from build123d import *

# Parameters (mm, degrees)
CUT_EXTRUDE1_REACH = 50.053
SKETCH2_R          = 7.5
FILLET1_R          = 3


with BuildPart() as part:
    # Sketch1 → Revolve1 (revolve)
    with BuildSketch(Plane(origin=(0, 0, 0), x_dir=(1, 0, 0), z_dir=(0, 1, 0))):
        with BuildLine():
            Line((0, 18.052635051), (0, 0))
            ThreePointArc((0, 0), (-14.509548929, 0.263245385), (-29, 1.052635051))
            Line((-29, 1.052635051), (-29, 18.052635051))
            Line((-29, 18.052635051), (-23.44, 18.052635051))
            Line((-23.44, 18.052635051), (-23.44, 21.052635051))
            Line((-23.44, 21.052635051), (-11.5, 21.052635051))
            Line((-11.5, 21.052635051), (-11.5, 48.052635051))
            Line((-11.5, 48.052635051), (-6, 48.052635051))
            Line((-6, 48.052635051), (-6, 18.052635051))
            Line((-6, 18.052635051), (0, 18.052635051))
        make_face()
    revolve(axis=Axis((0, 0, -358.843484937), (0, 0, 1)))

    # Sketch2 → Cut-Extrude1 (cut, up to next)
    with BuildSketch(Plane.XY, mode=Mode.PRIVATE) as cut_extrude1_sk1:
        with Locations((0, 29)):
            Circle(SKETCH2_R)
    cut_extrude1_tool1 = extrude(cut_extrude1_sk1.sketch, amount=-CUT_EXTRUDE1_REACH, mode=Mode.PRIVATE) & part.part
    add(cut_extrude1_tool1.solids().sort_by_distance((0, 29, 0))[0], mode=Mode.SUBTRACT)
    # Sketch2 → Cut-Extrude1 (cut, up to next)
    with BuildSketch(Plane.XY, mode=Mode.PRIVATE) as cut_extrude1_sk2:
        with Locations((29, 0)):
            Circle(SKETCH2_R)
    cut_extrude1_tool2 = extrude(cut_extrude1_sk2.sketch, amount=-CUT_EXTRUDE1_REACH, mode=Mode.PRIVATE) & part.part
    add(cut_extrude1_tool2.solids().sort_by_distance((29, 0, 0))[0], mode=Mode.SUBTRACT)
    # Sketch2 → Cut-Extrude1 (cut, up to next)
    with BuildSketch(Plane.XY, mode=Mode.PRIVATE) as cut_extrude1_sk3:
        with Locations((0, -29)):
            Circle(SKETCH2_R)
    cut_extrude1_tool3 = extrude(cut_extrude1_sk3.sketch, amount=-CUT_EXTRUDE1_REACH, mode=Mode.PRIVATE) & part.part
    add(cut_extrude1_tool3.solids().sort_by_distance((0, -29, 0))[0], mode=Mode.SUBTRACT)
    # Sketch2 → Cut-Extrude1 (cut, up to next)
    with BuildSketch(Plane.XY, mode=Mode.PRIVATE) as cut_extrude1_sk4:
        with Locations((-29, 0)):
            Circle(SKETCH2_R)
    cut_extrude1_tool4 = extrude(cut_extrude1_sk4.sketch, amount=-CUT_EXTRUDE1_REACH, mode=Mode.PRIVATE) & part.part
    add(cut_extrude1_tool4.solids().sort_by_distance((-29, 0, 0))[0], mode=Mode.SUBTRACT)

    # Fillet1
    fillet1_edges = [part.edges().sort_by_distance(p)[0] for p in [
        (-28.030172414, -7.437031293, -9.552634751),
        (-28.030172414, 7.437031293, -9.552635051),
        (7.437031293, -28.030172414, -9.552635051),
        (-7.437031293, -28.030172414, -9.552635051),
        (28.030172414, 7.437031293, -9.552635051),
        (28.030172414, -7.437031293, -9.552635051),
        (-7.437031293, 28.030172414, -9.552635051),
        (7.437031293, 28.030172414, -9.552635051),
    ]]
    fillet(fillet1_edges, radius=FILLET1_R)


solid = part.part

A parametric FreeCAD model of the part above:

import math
import FreeCAD as App
import Part
import Sketcher
from FreeCAD import Vector
Q = App.Units.Quantity


def edges_at(feature, points):
    """Names of the edges that pass closest to the given points."""
    edges = feature.Shape.Edges
    near = lambda p: min(range(len(edges)), key=lambda i: edges[i].distToShape(Part.Vertex(*p))[0])
    return sorted({f"Edge{near(p) + 1}" for p in points})

doc = App.newDocument("Part")
body = doc.addObject("PartDesign::Body", "Body")

sketch1 = doc.addObject("Sketcher::SketchObject", "Sketch")
body.addObject(sketch1)
sketch1.AttachmentSupport = (doc.XZ_Plane, [""])
sketch1.MapMode = "FlatFace"
sketch1.addGeometry([
    Part.LineSegment(Vector(0, 0, 0), Vector(0, -18.1, 0)),
    Part.LineSegment(Vector(0, -18.1, 0), Vector(-6, -18.1, 0)),
    Part.LineSegment(Vector(-6, -18.1, 0), Vector(-6, -48.1, 0)),
    Part.LineSegment(Vector(-6, -48.1, 0), Vector(-11.5, -48.1, 0)),
    Part.LineSegment(Vector(-11.5, -48.1, 0), Vector(-11.5, -21.1, 0)),
    Part.LineSegment(Vector(-11.5, -21.1, 0), Vector(-23.4, -21.1, 0)),
    Part.LineSegment(Vector(-23.4, -21.1, 0), Vector(-23.4, -18.1, 0)),
    Part.LineSegment(Vector(-23.4, -18.1, 0), Vector(-29, -18.1, 0)),
    Part.LineSegment(Vector(-29, -18.1, 0), Vector(-29, -1.1, 0)),
    Part.ArcOfCircle(Part.Circle(Vector(0, -400, 0), Vector(0, 0, 1), 400), math.radians(90), math.radians(94.16)),
], False)
sketch1.addConstraint([
    Sketcher.Constraint("Coincident", 0, 2, 1, 1),
    Sketcher.Constraint("Coincident", 1, 2, 2, 1),
    Sketcher.Constraint("Coincident", 2, 2, 3, 1),
    Sketcher.Constraint("Coincident", 3, 2, 4, 1),
    Sketcher.Constraint("Coincident", 4, 2, 5, 1),
    Sketcher.Constraint("Coincident", 5, 2, 6, 1),
    Sketcher.Constraint("Coincident", 6, 2, 7, 1),
    Sketcher.Constraint("Coincident", 7, 2, 8, 1),
    Sketcher.Constraint("Coincident", 8, 2, 9, 2),
    Sketcher.Constraint("Coincident", 9, 1, 0, 1),
    Sketcher.Constraint("Vertical", 0),
    Sketcher.Constraint("Horizontal", 1),
    Sketcher.Constraint("Vertical", 2),
    Sketcher.Constraint("Horizontal", 3),
    Sketcher.Constraint("Vertical", 4),
    Sketcher.Constraint("Horizontal", 5),
    Sketcher.Constraint("Vertical", 6),
    Sketcher.Constraint("Horizontal", 7),
    Sketcher.Constraint("Vertical", 8),
    Sketcher.Constraint("PointOnObject", 9, 3, -2),
    Sketcher.Constraint("PointOnObject", 0, 2, -2),
    Sketcher.Constraint("Horizontal", 1, 2, 6, 2),
    Sketcher.Constraint("Radius", 9, Q("399.999999 mm")),
    Sketcher.Constraint("DistanceX", 1, 2, 1, 1, Q("6 mm")),
    Sketcher.Constraint("DistanceY", 2, 2, 2, 1, Q("30 mm")),
    Sketcher.Constraint("DistanceY", 4, 1, 4, 2, Q("27 mm")),
    Sketcher.Constraint("DistanceY", 8, 1, 8, 2, Q("17 mm")),
    Sketcher.Constraint("DistanceX", 3, 2, 3, 1, Q("5.5 mm")),
    Sketcher.Constraint("DistanceY", 9, 3, -1, 1, Q("399.999999 mm")),
    Sketcher.Constraint("DistanceX", 7, 2, -1, 1, Q("29 mm")),
    Sketcher.Constraint("DistanceX", 5, 2, 5, 1, Q("11.94 mm")),
])
revolution = doc.addObject("PartDesign::Revolution", "Revolution")
body.addObject(revolution)
revolution.Profile = sketch1
revolution.ReferenceAxis = (sketch1, ["V_Axis"])
revolution.Angle = 360

sketch2 = doc.addObject("Sketcher::SketchObject", "Sketch001")
body.addObject(sketch2)
sketch2.AttachmentSupport = (doc.XY_Plane, [""])
sketch2.MapMode = "FlatFace"
sketch2.addGeometry(Part.Circle(Vector(0, 29, 0), Vector(0, 0, 1), 8), False)
sketch2.addConstraint([
    Sketcher.Constraint("PointOnObject", 0, 3, -2),
    Sketcher.Constraint("Diameter", 0, Q("15 mm")),
    Sketcher.Constraint("DistanceY", -1, 1, 0, 3, Q("29 mm")),
])
pocket1 = doc.addObject("PartDesign::Pocket", "Pocket")
body.addObject(pocket1)
pocket1.Profile = sketch2
pocket1.Length = 21.052635

sketch3 = doc.addObject("Sketcher::SketchObject", "Sketch002")
body.addObject(sketch3)
sketch3.AttachmentSupport = (doc.XY_Plane, [""])
sketch3.MapMode = "FlatFace"
sketch3.addGeometry(Part.Circle(Vector(29, 0, 0), Vector(0, 0, 1), 8), False)
sketch3.addConstraint([
    Sketcher.Constraint("PointOnObject", 0, 3, -1),
    Sketcher.Constraint("Diameter", 0, Q("15 mm")),
    Sketcher.Constraint("DistanceX", -1, 1, 0, 3, Q("29 mm")),
])
pocket2 = doc.addObject("PartDesign::Pocket", "Pocket001")
body.addObject(pocket2)
pocket2.Profile = sketch3
pocket2.Length = 21.052635

sketch4 = doc.addObject("Sketcher::SketchObject", "Sketch003")
body.addObject(sketch4)
sketch4.AttachmentSupport = (doc.XY_Plane, [""])
sketch4.MapMode = "FlatFace"
sketch4.addGeometry(Part.Circle(Vector(0, -29, 0), Vector(0, 0, 1), 8), False)
sketch4.addConstraint([
    Sketcher.Constraint("PointOnObject", 0, 3, -2),
    Sketcher.Constraint("Diameter", 0, Q("15 mm")),
    Sketcher.Constraint("DistanceY", 0, 3, -1, 1, Q("29 mm")),
])
pocket3 = doc.addObject("PartDesign::Pocket", "Pocket002")
body.addObject(pocket3)
pocket3.Profile = sketch4
pocket3.Length = 21.052635

sketch5 = doc.addObject("Sketcher::SketchObject", "Sketch004")
body.addObject(sketch5)
sketch5.AttachmentSupport = (doc.XY_Plane, [""])
sketch5.MapMode = "FlatFace"
sketch5.addGeometry(Part.Circle(Vector(-29, 0, 0), Vector(0, 0, 1), 8), False)
sketch5.addConstraint([
    Sketcher.Constraint("PointOnObject", 0, 3, -1),
    Sketcher.Constraint("Diameter", 0, Q("15 mm")),
    Sketcher.Constraint("DistanceX", 0, 3, -1, 1, Q("29 mm")),
])
pocket4 = doc.addObject("PartDesign::Pocket", "Pocket003")
body.addObject(pocket4)
pocket4.Profile = sketch5
pocket4.Length = 21.052635
doc.recompute()

fillet = doc.addObject("PartDesign::Fillet", "Fillet")
body.addObject(fillet)
fillet.Base = (pocket4, edges_at(pocket4, [
    (-28.03, -7.437, -9.553),
    (-28.03, 7.437, -9.553),
    (7.437, -28.03, -9.553),
    (-7.437, -28.03, -9.553),
    (28.03, 7.437, -9.553),
    (28.03, -7.437, -9.553),
    (-7.437, 28.03, -9.553),
    (7.437, 28.03, -9.553),
]))
fillet.Radius = 3

doc.recompute()
